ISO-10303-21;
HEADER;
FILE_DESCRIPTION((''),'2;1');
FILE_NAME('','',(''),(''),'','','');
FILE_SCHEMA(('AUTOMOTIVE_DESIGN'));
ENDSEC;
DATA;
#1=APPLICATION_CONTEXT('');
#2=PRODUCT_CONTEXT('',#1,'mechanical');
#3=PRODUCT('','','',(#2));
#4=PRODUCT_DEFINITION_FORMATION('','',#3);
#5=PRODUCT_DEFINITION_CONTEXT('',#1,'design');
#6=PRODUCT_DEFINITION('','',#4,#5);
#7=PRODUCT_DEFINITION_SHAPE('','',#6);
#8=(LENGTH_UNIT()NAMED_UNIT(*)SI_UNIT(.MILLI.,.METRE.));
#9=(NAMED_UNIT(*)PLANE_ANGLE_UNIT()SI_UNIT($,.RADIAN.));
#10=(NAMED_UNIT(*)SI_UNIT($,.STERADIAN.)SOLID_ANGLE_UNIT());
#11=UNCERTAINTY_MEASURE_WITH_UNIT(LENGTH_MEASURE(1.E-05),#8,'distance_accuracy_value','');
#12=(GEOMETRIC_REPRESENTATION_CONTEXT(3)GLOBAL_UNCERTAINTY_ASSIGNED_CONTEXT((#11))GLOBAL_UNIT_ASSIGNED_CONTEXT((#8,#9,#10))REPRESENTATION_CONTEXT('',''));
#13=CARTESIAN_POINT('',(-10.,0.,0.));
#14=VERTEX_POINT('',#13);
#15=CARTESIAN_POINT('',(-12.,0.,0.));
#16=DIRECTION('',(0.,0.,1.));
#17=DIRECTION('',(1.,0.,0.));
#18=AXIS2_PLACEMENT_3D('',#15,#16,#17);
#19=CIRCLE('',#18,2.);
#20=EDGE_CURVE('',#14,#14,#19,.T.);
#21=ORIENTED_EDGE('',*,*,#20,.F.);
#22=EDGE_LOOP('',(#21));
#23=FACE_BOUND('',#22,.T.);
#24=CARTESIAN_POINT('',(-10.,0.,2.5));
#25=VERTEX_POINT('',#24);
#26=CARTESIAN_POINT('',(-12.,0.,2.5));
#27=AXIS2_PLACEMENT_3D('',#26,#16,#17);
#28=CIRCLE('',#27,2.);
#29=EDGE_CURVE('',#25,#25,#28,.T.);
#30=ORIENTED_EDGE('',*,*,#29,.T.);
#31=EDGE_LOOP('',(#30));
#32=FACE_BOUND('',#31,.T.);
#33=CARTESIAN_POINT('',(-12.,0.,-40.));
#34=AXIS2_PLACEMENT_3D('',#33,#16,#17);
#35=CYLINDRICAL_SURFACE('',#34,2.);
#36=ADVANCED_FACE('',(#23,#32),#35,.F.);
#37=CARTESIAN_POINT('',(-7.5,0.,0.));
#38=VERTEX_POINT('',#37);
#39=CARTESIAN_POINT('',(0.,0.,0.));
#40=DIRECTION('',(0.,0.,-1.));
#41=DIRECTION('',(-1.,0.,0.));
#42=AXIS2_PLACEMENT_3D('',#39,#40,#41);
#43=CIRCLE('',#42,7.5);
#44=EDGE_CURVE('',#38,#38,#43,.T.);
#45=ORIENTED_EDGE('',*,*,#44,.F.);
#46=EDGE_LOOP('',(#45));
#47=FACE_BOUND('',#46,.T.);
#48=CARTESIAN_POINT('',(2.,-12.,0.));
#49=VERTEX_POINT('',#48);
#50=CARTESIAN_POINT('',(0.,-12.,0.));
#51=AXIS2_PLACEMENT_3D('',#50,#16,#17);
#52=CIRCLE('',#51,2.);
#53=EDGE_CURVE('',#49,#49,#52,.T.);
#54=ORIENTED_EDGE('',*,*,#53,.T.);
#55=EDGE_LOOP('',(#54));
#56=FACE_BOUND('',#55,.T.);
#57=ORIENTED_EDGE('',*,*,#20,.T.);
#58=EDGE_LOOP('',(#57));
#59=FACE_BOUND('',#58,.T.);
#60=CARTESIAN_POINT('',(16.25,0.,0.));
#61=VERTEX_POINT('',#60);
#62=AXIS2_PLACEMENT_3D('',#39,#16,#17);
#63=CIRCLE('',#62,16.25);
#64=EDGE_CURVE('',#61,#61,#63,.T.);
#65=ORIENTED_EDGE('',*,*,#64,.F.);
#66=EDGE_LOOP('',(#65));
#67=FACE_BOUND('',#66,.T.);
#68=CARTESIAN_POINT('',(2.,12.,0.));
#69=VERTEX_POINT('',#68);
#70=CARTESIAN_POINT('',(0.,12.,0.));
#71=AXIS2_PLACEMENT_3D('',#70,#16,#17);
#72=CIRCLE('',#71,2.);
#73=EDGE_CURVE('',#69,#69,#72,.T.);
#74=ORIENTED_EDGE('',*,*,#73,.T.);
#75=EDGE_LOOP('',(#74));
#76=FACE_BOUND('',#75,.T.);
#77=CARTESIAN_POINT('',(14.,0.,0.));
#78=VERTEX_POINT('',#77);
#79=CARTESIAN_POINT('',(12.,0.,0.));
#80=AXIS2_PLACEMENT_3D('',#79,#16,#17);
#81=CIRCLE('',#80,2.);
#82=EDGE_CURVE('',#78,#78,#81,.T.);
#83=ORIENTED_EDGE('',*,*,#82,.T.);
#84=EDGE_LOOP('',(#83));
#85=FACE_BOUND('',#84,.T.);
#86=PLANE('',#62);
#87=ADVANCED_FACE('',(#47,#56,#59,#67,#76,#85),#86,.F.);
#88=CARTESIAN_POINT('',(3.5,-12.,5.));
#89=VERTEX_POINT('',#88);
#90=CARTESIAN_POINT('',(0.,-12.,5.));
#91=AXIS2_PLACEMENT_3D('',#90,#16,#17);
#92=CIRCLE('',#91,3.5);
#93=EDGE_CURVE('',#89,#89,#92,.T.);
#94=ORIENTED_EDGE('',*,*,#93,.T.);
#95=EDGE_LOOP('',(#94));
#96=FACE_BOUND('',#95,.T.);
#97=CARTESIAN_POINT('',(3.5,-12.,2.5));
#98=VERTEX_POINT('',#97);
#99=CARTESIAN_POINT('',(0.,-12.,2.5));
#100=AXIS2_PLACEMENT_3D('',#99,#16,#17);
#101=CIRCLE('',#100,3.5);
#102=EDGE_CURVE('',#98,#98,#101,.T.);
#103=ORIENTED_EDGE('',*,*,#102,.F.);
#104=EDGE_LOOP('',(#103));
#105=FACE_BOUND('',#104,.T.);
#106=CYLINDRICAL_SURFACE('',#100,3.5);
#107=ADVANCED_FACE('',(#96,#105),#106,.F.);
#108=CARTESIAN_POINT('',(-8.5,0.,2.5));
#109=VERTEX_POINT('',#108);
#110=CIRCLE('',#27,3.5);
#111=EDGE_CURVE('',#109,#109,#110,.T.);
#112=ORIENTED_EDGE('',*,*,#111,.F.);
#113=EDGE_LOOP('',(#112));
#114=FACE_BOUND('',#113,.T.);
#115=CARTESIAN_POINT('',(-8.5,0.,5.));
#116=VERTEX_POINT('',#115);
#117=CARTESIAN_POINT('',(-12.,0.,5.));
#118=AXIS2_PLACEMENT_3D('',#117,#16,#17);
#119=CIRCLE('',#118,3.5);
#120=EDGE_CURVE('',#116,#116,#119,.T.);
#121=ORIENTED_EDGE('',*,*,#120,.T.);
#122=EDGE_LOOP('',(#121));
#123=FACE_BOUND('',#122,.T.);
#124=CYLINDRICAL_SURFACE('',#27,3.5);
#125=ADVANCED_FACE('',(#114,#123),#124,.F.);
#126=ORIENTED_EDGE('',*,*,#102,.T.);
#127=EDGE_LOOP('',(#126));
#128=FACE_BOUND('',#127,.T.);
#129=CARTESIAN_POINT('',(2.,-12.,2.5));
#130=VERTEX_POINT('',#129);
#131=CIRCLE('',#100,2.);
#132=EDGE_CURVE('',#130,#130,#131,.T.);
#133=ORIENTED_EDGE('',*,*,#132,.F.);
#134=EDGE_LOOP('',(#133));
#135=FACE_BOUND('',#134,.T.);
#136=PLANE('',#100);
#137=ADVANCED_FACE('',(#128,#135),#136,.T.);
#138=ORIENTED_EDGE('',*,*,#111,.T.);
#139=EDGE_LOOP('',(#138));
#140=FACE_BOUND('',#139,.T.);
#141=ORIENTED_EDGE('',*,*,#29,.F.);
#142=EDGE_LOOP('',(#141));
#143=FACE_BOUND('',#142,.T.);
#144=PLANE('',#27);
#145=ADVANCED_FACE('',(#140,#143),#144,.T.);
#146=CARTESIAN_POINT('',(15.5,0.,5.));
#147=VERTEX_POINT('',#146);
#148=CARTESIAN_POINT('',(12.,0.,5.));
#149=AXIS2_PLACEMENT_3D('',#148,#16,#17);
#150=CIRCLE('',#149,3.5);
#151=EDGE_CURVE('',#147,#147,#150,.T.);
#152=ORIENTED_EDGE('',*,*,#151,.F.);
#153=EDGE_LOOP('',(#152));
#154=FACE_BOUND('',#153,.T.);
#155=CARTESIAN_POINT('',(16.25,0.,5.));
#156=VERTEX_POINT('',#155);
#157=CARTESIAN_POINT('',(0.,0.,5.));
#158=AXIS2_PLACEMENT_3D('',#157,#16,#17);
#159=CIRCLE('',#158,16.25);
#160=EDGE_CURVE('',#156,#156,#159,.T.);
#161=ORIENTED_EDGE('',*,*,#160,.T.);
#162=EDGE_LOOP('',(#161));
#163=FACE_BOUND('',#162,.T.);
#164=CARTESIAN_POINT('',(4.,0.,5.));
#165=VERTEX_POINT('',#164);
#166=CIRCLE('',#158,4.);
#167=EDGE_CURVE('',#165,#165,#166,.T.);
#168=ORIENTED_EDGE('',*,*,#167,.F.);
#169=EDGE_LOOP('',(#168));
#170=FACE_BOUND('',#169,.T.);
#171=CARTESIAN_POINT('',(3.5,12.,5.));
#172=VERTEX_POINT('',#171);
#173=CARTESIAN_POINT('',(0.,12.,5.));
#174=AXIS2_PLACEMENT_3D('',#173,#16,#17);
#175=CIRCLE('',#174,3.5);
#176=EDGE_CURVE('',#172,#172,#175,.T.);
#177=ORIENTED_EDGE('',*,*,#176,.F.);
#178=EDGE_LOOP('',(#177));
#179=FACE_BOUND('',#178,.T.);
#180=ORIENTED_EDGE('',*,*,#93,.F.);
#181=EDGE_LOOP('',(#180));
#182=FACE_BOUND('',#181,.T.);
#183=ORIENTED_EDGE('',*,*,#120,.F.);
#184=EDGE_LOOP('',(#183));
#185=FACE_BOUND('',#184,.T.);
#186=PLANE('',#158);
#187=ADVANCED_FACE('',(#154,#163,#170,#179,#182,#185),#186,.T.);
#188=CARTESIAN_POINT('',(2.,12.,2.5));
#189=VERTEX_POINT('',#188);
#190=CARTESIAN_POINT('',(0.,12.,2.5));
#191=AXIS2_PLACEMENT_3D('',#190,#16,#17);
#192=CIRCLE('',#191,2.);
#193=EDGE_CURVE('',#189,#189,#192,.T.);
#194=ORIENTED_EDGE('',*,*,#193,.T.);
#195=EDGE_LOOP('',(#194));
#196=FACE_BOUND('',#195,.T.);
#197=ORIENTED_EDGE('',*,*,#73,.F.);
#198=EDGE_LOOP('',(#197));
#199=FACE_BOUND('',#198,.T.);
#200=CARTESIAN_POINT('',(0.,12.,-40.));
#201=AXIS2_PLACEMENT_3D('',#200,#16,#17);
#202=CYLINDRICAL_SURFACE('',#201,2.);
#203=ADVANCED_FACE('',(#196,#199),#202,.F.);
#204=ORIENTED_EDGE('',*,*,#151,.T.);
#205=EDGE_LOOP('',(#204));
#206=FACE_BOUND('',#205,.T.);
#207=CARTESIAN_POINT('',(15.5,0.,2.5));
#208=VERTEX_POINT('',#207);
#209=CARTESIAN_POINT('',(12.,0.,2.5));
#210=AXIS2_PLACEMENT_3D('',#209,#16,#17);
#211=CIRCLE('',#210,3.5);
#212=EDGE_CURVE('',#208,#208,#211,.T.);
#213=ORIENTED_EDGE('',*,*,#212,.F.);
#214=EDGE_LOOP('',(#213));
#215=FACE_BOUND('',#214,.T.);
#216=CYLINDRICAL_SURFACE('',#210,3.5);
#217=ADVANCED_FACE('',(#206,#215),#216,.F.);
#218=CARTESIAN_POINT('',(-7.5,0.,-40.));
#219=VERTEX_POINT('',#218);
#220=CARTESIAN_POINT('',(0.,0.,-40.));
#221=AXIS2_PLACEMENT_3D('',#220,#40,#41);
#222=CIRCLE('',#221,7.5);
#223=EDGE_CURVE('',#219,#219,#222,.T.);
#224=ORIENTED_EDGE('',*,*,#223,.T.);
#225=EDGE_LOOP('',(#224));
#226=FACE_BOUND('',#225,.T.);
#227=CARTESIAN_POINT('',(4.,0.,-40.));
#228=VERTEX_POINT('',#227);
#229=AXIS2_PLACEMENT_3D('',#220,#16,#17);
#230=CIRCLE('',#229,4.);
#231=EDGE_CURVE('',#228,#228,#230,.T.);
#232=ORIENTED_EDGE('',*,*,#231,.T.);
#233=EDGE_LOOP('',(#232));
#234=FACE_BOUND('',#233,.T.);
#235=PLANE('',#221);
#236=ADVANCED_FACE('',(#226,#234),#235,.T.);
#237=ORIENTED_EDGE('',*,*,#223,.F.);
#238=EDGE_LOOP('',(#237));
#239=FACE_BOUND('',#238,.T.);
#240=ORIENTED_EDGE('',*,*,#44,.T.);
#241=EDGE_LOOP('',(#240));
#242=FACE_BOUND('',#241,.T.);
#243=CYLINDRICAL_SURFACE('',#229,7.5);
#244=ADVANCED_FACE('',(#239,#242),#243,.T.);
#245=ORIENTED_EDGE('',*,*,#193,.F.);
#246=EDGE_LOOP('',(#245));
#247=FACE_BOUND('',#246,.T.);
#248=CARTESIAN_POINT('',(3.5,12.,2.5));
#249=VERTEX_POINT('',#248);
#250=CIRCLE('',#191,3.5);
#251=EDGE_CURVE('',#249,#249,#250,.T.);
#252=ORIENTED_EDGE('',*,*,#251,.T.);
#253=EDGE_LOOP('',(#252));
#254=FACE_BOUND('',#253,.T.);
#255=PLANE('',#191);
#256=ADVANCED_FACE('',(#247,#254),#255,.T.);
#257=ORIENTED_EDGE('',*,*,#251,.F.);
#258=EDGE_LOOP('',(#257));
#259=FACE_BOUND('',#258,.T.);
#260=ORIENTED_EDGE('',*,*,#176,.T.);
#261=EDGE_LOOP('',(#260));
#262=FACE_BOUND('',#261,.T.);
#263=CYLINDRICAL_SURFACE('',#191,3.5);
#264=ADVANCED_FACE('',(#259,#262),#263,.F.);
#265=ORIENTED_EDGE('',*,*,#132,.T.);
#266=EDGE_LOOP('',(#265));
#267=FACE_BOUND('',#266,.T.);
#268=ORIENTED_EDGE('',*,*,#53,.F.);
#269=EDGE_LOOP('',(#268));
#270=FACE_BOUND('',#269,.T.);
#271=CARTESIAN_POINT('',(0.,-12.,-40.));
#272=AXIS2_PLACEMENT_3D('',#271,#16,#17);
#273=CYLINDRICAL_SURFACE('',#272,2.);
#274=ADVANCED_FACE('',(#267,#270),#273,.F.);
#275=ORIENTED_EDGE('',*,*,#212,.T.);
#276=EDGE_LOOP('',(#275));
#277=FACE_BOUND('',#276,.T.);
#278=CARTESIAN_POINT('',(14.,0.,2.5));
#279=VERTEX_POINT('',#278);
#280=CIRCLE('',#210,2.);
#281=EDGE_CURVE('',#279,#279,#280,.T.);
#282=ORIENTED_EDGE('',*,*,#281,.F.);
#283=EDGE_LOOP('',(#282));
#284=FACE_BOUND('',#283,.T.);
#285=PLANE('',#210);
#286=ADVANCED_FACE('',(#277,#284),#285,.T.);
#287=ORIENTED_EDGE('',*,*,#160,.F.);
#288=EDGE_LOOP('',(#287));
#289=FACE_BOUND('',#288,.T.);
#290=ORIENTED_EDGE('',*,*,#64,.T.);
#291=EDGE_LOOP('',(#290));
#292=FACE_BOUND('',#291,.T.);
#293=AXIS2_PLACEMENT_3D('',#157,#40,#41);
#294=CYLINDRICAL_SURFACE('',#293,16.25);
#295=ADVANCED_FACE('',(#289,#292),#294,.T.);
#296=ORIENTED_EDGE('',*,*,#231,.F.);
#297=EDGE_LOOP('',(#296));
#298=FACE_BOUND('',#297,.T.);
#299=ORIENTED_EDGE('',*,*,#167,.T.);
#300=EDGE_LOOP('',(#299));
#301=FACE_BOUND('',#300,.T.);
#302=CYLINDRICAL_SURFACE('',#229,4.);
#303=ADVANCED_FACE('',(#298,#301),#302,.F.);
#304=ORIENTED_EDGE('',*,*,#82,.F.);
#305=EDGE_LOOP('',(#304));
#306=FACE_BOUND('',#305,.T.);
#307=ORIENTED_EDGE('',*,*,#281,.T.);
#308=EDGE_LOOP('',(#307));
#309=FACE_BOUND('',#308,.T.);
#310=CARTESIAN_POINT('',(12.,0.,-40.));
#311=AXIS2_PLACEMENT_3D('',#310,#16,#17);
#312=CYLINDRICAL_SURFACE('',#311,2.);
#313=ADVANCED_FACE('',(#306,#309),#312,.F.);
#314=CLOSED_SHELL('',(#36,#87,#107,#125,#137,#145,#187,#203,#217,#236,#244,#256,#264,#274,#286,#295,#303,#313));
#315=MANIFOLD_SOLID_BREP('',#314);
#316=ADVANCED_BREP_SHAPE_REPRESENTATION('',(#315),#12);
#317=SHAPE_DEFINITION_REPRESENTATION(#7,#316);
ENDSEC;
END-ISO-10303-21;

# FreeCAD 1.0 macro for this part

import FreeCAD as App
import Part
import Sketcher
from FreeCAD import Vector
Q = App.Units.Quantity

doc = App.newDocument("Part")
body = doc.addObject("PartDesign::Body", "Body")

# Sketch on XY plane
sketch1 = doc.addObject("Sketcher::SketchObject", "Sketch")
body.addObject(sketch1)
sketch1.AttachmentSupport = (doc.XY_Plane, [""])
sketch1.MapMode = "FlatFace"
sketch1.addGeometry(Part.Circle(Vector(0, 0, 0), Vector(0, 0, 1), 16), False)
sketch1.addConstraint([
    Sketcher.Constraint("Coincident", 0, 3, -1, 1),
    Sketcher.Constraint("Diameter", 0, Q("32.5 mm")),
])
pad1 = doc.addObject("PartDesign::Pad", "Pad")
body.addObject(pad1)
pad1.Profile = sketch1
pad1.Length = 5

# Sketch on XY plane
sketch2 = doc.addObject("Sketcher::SketchObject", "Sketch001")
body.addObject(sketch2)
sketch2.AttachmentSupport = (doc.XY_Plane, [""])
sketch2.MapMode = "FlatFace"
sketch2.AttachmentOffset = App.Placement(Vector(0, 0, 5), App.Rotation())
sketch2.addGeometry([
    Part.Circle(Vector(0, 12, 0), Vector(0, 0, 1), 3.5),
    Part.Circle(Vector(12, 0, 0), Vector(0, 0, 1), 3.5),
    Part.Circle(Vector(0, -12, 0), Vector(0, 0, 1), 3.5),
    Part.Circle(Vector(-12, 0, 0), Vector(0, 0, 1), 3.5),
], False)
sketch2.addConstraint([
    Sketcher.Constraint("Equal", 0, 1),
    Sketcher.Constraint("Equal", 1, 2),
    Sketcher.Constraint("Equal", 2, 3),
    Sketcher.Constraint("Symmetric", 0, 3, 2, 3, -1, 1),
    Sketcher.Constraint("Symmetric", 1, 3, 3, 3, -1, 1),
    Sketcher.Constraint("PointOnObject", 0, 3, -2),
    Sketcher.Constraint("PointOnObject", 1, 3, -1),
    Sketcher.Constraint("Diameter", 0, Q("7 mm")),
    Sketcher.Constraint("DistanceY", -1, 1, 0, 3, Q("12 mm")),
    Sketcher.Constraint("DistanceX", -1, 1, 1, 3, Q("12 mm")),
])
pocket1 = doc.addObject("PartDesign::Pocket", "Pocket")
body.addObject(pocket1)
pocket1.Profile = sketch2
pocket1.Length = 2.5

# Sketch on XY plane
sketch3 = doc.addObject("Sketcher::SketchObject", "Sketch002")
body.addObject(sketch3)
sketch3.AttachmentSupport = (doc.XY_Plane, [""])
sketch3.MapMode = "FlatFace"
sketch3.addGeometry(Part.Circle(Vector(0, 0, 0), Vector(0, 0, 1), 8), False)
sketch3.addConstraint([
    Sketcher.Constraint("Coincident", 0, 3, -1, 1),
    Sketcher.Constraint("Diameter", 0, Q("15 mm")),
])
pad2 = doc.addObject("PartDesign::Pad", "Pad001")
body.addObject(pad2)
pad2.Profile = sketch3
pad2.Length = 40
pad2.Reversed = True

# Sketch on XY plane
sketch4 = doc.addObject("Sketcher::SketchObject", "Sketch003")
body.addObject(sketch4)
sketch4.AttachmentSupport = (doc.XY_Plane, [""])
sketch4.MapMode = "FlatFace"
sketch4.AttachmentOffset = App.Placement(Vector(0, 0, 5), App.Rotation())
sketch4.addGeometry(Part.Circle(Vector(0, 0, 0), Vector(0, 0, 1), 4), False)
sketch4.addConstraint([
    Sketcher.Constraint("Coincident", 0, 3, -1, 1),
    Sketcher.Constraint("Diameter", 0, Q("8 mm")),
])
pocket2 = doc.addObject("PartDesign::Pocket", "Pocket001")
body.addObject(pocket2)
pocket2.Profile = sketch4
pocket2.Type = "ThroughAll"

# Sketch on XY plane
sketch5 = doc.addObject("Sketcher::SketchObject", "Sketch004")
body.addObject(sketch5)
sketch5.AttachmentSupport = (doc.XY_Plane, [""])
sketch5.MapMode = "FlatFace"
sketch5.AttachmentOffset = App.Placement(Vector(0, 0, 2.5), App.Rotation())
sketch5.addGeometry([
    Part.Circle(Vector(12, 0, 0), Vector(0, 0, 1), 2),
    Part.Circle(Vector(0, -12, 0), Vector(0, 0, 1), 2),
    Part.Circle(Vector(-12, 0, 0), Vector(0, 0, 1), 2),
    Part.Circle(Vector(0, 12, 0), Vector(0, 0, 1), 2),
], False)
sketch5.addConstraint([
    Sketcher.Constraint("Equal", 0, 1),
    Sketcher.Constraint("Equal", 1, 2),
    Sketcher.Constraint("Equal", 2, 3),
    Sketcher.Constraint("Symmetric", 0, 3, 2, 3, -1, 1),
    Sketcher.Constraint("Symmetric", 1, 3, 3, 3, -1, 1),
    Sketcher.Constraint("PointOnObject", 0, 3, -1),
    Sketcher.Constraint("PointOnObject", 1, 3, -2),
    Sketcher.Constraint("Diameter", 0, Q("4 mm")),
    Sketcher.Constraint("DistanceX", -1, 1, 0, 3, Q("12 mm")),
    Sketcher.Constraint("DistanceY", 1, 3, -1, 1, Q("12 mm")),
])
pocket3 = doc.addObject("PartDesign::Pocket", "Pocket002")
body.addObject(pocket3)
pocket3.Profile = sketch5
pocket3.Type = "ThroughAll"

doc.recompute()
